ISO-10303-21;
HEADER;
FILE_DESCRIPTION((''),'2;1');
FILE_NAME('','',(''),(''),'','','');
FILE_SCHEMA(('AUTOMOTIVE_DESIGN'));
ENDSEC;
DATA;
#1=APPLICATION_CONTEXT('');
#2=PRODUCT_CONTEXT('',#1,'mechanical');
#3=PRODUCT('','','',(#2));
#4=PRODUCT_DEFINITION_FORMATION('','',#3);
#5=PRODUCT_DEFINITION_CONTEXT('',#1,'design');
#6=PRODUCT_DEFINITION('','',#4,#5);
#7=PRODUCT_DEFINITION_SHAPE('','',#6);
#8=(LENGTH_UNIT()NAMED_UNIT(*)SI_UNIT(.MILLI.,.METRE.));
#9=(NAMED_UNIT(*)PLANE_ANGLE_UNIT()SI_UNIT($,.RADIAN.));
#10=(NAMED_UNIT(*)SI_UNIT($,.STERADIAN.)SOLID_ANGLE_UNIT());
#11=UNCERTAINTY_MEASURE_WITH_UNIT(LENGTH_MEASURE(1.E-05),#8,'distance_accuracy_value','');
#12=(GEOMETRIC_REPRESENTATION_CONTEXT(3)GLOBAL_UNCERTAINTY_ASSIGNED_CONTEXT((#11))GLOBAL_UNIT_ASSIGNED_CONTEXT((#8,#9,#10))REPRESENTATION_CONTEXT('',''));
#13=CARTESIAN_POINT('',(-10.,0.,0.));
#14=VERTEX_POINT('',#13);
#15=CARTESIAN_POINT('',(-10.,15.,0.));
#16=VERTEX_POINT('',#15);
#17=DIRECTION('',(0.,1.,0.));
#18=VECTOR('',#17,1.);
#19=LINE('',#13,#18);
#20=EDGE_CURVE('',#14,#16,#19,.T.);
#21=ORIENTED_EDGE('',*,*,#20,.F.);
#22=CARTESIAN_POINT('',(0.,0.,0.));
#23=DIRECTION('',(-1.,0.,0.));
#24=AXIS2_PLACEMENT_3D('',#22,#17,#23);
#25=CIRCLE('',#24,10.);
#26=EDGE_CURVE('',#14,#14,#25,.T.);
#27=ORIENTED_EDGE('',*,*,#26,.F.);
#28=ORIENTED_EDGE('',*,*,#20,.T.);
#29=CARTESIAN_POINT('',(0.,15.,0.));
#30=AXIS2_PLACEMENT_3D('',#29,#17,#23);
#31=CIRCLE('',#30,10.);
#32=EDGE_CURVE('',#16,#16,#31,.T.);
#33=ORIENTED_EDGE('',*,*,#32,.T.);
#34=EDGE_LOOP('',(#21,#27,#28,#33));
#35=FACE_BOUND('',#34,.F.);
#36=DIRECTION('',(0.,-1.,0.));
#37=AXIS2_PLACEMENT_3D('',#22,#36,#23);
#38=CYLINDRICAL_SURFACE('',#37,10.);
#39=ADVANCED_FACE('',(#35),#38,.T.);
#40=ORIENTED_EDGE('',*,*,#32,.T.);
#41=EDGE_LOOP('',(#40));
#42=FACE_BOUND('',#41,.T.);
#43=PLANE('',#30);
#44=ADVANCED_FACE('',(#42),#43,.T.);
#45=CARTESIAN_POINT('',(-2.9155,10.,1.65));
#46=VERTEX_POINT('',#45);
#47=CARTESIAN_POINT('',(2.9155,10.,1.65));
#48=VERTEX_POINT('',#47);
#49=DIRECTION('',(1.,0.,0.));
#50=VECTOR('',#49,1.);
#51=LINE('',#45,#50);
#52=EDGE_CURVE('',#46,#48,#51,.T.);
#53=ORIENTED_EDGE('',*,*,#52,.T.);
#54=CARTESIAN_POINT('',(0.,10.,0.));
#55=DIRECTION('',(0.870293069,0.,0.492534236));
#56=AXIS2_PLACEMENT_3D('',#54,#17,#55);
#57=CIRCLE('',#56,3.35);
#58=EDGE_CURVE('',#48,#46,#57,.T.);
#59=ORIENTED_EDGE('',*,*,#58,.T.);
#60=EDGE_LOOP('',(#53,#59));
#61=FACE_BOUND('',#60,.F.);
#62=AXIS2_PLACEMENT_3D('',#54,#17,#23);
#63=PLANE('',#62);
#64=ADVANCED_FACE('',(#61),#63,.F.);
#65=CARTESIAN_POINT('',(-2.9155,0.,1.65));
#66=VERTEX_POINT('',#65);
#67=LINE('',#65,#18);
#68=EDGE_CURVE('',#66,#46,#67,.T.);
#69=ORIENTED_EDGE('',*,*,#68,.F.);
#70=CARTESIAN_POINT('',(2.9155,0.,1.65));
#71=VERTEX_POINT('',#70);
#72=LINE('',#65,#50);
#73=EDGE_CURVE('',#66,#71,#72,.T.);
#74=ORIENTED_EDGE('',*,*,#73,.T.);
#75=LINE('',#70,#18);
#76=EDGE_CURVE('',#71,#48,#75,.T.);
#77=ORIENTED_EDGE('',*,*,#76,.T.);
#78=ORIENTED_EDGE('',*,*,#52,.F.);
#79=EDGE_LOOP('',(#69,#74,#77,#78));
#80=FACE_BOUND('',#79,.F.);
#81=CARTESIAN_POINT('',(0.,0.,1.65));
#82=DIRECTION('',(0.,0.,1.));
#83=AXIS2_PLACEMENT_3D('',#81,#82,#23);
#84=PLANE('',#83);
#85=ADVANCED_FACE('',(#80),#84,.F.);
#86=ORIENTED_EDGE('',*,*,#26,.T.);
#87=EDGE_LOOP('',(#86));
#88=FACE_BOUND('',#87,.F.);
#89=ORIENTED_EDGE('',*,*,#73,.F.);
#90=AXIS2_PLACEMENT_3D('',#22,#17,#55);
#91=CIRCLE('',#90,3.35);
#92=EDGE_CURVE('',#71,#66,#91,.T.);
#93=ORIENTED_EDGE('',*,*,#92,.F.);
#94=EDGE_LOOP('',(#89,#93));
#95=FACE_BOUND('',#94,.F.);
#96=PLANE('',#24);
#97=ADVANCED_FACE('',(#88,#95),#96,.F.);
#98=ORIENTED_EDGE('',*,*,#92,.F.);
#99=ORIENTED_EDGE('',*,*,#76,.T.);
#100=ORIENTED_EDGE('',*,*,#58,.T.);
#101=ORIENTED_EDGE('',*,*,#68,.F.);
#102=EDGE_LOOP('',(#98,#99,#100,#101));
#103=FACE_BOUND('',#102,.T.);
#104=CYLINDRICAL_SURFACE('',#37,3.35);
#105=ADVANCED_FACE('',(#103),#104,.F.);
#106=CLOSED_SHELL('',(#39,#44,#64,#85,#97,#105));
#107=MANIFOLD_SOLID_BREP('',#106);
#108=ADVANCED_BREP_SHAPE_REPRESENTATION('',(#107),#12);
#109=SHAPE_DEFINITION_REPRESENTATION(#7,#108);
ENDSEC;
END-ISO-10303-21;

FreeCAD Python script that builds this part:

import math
import FreeCAD as App
import Part
import Sketcher

V = App.Vector

doc = App.newDocument("Part")
body = doc.addObject("PartDesign::Body", "Body")

sketch1 = body.newObject("Sketcher::SketchObject", "Sketch")
sketch1.AttachmentSupport = (doc.getObject("XZ_Plane"), [""])
sketch1.MapMode = "FlatFace"
sketch1.addGeometry(Part.Circle(V(0, 0, 0), V(0, 0, 1), 10), False)
sketch1.addConstraint(Sketcher.Constraint("Coincident", 0, 3, -1, 1))
sketch1.addConstraint(Sketcher.Constraint("Diameter", 0, 20.0))
pad1 = body.newObject("PartDesign::Pad", "Pad")
pad1.Profile = sketch1
pad1.Length = 15
pad1.Reversed = True

sketch2 = body.newObject("Sketcher::SketchObject", "Sketch001")
sketch2.AttachmentSupport = (doc.getObject("XZ_Plane"), [""])
sketch2.MapMode = "FlatFace"
sketch2.addGeometry(Part.LineSegment(V(-2.9155, 1.65, 0), V(2.9155, 1.65, 0)), False)
sketch2.addGeometry(Part.ArcOfCircle(Part.Circle(V(0, 0, 0), V(0, 0, 1), 3.35), math.radians(150.492714), math.radians(389.507286)), False)
sketch2.addConstraint(Sketcher.Constraint("Coincident", 0, 1, 1, 1))
sketch2.addConstraint(Sketcher.Constraint("Coincident", 1, 2, 0, 2))
sketch2.addConstraint(Sketcher.Constraint("Horizontal", 0))
sketch2.addConstraint(Sketcher.Constraint("Coincident", 1, 3, -1, 1))
sketch2.addConstraint(Sketcher.Constraint("Radius", 1, 3.35))
sketch2.addConstraint(Sketcher.Constraint("DistanceX", 0, 1, 0, 2, 5.831))
pocket1 = body.newObject("PartDesign::Pocket", "Pocket")
pocket1.Profile = sketch2
pocket1.Length = 10

doc.recompute()
